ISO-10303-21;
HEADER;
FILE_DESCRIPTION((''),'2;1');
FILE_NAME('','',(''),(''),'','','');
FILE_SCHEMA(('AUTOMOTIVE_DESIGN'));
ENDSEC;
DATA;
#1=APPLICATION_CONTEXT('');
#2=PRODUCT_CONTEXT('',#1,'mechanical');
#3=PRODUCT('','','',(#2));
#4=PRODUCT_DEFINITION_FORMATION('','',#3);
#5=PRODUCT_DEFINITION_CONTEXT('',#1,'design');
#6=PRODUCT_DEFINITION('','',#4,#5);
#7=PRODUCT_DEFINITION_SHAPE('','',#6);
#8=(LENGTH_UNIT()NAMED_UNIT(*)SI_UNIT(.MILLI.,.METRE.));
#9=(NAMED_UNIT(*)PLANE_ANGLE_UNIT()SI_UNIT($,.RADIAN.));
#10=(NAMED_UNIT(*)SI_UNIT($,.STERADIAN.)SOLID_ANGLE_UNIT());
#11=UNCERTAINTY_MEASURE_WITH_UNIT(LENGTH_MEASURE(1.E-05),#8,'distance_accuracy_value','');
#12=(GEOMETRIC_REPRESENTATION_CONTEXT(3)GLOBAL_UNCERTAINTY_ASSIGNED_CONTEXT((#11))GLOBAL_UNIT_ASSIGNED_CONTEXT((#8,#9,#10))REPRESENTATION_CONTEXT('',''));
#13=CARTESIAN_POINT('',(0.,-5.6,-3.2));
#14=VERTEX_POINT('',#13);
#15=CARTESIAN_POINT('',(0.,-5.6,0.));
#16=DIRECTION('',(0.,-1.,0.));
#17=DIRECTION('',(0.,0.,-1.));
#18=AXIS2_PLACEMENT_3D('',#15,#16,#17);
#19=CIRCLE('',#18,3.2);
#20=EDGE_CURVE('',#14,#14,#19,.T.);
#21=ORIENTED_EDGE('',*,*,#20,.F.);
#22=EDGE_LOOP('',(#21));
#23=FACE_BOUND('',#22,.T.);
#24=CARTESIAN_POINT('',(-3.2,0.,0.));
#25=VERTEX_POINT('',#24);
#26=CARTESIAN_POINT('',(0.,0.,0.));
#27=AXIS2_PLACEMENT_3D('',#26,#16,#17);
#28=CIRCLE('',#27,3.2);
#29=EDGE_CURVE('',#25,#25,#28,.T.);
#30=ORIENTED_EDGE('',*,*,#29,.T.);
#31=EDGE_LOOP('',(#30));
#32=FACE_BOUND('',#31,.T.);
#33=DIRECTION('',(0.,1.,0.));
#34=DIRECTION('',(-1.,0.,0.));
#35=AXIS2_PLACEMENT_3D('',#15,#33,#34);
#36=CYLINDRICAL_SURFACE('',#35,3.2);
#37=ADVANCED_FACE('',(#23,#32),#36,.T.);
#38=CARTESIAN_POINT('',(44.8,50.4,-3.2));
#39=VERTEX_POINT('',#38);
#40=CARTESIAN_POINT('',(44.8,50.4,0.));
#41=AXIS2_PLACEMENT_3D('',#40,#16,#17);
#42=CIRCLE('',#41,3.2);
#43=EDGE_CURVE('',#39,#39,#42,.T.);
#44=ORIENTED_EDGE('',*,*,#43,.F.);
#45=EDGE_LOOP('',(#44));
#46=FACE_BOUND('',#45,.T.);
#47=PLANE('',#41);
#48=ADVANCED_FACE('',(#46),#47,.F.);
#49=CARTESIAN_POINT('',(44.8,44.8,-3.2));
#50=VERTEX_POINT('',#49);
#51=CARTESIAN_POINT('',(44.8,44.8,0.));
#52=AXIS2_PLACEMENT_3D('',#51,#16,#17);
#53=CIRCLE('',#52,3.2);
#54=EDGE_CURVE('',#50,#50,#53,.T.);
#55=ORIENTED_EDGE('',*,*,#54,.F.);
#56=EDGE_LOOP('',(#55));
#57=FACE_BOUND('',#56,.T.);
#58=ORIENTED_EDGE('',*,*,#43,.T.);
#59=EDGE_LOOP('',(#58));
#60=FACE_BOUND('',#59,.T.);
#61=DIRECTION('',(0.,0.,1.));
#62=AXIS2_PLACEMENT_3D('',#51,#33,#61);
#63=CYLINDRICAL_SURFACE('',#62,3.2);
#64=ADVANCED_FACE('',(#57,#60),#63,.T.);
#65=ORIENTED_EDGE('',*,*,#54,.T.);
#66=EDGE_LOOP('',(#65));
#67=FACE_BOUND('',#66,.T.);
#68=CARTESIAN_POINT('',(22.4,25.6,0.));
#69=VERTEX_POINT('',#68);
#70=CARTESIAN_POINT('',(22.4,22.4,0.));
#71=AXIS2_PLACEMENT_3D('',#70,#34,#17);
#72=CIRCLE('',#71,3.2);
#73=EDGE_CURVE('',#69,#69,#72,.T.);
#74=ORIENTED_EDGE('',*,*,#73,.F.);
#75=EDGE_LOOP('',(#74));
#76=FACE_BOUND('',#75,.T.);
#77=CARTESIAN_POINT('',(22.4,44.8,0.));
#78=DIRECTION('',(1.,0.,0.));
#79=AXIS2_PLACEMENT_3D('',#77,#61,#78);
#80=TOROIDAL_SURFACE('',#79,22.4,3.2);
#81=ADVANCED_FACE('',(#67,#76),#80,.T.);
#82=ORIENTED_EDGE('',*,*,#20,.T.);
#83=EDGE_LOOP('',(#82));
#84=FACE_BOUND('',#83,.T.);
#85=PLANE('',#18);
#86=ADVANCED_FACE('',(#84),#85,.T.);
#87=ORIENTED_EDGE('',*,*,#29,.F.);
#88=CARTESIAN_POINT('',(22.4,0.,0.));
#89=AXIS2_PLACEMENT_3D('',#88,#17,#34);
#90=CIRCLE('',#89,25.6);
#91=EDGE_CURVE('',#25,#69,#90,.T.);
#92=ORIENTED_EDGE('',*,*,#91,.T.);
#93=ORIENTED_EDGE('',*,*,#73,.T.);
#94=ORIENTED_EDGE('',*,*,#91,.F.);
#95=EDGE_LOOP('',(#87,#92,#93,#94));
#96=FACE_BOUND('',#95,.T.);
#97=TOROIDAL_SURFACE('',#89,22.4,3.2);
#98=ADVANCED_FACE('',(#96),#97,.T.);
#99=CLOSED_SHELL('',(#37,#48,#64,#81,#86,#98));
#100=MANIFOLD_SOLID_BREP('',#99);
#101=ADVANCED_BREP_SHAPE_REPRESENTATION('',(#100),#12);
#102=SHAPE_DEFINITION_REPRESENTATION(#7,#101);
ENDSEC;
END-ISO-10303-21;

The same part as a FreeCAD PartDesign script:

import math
import FreeCAD as App
import Part
import Sketcher

V = App.Vector

doc = App.newDocument("Part")
body = doc.addObject("PartDesign::Body", "Body")

sketch1 = body.newObject("Sketcher::SketchObject", "Sketch")
sketch1.AttachmentSupport = (doc.getObject("XZ_Plane"), [""])
sketch1.MapMode = "FlatFace"
sketch1.AttachmentOffset = App.Placement(V(0, 0, 5.6), App.Rotation())
sketch1.addGeometry(Part.Circle(V(0, 0, 0), V(0, 0, 1), 3.2), False)
sketch1.addConstraint(Sketcher.Constraint("Coincident", 0, 3, -1, 1))
sketch1.addConstraint(Sketcher.Constraint("Diameter", 0, 6.4))

sketch2 = body.newObject("Sketcher::SketchObject", "Sketch001")
sketch2.AttachmentSupport = (doc.getObject("XY_Plane"), [""])
sketch2.MapMode = "FlatFace"
sketch2.addGeometry(Part.LineSegment(V(0, -5.6, 0), V(0, 0, 0)), False)
sketch2.addGeometry(Part.ArcOfCircle(Part.Circle(V(22.4, 0, 0), V(0, 0, 1), 22.4), math.radians(90), math.radians(180)), False)
sketch2.addGeometry(Part.ArcOfCircle(Part.Circle(V(22.4, 44.8, 0), V(0, 0, 1), 22.4), math.radians(-90), math.radians(0)), False)
sketch2.addGeometry(Part.LineSegment(V(44.8, 44.8, 0), V(44.8, 50.4, 0)), False)
sketch2.addConstraint(Sketcher.Constraint("Tangent", 0, 2, 1, 2))
sketch2.addConstraint(Sketcher.Constraint("Tangent", 1, 1, 2, 1))
sketch2.addConstraint(Sketcher.Constraint("Tangent", 2, 2, 3, 1))
sketch2.addConstraint(Sketcher.Constraint("Vertical", 0))
sketch2.addConstraint(Sketcher.Constraint("Vertical", 3))
sketch2.addConstraint(Sketcher.Constraint("Coincident", 0, 2, -1, 1))
sketch2.addConstraint(Sketcher.Constraint("Equal", 1, 2))
sketch2.addConstraint(Sketcher.Constraint("Vertical", 1, 3, 2, 3))
sketch2.addConstraint(Sketcher.Constraint("Equal", 0, 3))
sketch2.addConstraint(Sketcher.Constraint("Radius", 1, 22.4))
sketch2.addConstraint(Sketcher.Constraint("DistanceY", 0, 1, 0, 2, 5.6))
doc.recompute()

additivepipe = body.newObject("PartDesign::AdditivePipe", "AdditivePipe")
additivepipe.Profile = sketch1
additivepipe.Spine = (sketch2, ["Edge1", "Edge2", "Edge3", "Edge4"])

doc.recompute()
